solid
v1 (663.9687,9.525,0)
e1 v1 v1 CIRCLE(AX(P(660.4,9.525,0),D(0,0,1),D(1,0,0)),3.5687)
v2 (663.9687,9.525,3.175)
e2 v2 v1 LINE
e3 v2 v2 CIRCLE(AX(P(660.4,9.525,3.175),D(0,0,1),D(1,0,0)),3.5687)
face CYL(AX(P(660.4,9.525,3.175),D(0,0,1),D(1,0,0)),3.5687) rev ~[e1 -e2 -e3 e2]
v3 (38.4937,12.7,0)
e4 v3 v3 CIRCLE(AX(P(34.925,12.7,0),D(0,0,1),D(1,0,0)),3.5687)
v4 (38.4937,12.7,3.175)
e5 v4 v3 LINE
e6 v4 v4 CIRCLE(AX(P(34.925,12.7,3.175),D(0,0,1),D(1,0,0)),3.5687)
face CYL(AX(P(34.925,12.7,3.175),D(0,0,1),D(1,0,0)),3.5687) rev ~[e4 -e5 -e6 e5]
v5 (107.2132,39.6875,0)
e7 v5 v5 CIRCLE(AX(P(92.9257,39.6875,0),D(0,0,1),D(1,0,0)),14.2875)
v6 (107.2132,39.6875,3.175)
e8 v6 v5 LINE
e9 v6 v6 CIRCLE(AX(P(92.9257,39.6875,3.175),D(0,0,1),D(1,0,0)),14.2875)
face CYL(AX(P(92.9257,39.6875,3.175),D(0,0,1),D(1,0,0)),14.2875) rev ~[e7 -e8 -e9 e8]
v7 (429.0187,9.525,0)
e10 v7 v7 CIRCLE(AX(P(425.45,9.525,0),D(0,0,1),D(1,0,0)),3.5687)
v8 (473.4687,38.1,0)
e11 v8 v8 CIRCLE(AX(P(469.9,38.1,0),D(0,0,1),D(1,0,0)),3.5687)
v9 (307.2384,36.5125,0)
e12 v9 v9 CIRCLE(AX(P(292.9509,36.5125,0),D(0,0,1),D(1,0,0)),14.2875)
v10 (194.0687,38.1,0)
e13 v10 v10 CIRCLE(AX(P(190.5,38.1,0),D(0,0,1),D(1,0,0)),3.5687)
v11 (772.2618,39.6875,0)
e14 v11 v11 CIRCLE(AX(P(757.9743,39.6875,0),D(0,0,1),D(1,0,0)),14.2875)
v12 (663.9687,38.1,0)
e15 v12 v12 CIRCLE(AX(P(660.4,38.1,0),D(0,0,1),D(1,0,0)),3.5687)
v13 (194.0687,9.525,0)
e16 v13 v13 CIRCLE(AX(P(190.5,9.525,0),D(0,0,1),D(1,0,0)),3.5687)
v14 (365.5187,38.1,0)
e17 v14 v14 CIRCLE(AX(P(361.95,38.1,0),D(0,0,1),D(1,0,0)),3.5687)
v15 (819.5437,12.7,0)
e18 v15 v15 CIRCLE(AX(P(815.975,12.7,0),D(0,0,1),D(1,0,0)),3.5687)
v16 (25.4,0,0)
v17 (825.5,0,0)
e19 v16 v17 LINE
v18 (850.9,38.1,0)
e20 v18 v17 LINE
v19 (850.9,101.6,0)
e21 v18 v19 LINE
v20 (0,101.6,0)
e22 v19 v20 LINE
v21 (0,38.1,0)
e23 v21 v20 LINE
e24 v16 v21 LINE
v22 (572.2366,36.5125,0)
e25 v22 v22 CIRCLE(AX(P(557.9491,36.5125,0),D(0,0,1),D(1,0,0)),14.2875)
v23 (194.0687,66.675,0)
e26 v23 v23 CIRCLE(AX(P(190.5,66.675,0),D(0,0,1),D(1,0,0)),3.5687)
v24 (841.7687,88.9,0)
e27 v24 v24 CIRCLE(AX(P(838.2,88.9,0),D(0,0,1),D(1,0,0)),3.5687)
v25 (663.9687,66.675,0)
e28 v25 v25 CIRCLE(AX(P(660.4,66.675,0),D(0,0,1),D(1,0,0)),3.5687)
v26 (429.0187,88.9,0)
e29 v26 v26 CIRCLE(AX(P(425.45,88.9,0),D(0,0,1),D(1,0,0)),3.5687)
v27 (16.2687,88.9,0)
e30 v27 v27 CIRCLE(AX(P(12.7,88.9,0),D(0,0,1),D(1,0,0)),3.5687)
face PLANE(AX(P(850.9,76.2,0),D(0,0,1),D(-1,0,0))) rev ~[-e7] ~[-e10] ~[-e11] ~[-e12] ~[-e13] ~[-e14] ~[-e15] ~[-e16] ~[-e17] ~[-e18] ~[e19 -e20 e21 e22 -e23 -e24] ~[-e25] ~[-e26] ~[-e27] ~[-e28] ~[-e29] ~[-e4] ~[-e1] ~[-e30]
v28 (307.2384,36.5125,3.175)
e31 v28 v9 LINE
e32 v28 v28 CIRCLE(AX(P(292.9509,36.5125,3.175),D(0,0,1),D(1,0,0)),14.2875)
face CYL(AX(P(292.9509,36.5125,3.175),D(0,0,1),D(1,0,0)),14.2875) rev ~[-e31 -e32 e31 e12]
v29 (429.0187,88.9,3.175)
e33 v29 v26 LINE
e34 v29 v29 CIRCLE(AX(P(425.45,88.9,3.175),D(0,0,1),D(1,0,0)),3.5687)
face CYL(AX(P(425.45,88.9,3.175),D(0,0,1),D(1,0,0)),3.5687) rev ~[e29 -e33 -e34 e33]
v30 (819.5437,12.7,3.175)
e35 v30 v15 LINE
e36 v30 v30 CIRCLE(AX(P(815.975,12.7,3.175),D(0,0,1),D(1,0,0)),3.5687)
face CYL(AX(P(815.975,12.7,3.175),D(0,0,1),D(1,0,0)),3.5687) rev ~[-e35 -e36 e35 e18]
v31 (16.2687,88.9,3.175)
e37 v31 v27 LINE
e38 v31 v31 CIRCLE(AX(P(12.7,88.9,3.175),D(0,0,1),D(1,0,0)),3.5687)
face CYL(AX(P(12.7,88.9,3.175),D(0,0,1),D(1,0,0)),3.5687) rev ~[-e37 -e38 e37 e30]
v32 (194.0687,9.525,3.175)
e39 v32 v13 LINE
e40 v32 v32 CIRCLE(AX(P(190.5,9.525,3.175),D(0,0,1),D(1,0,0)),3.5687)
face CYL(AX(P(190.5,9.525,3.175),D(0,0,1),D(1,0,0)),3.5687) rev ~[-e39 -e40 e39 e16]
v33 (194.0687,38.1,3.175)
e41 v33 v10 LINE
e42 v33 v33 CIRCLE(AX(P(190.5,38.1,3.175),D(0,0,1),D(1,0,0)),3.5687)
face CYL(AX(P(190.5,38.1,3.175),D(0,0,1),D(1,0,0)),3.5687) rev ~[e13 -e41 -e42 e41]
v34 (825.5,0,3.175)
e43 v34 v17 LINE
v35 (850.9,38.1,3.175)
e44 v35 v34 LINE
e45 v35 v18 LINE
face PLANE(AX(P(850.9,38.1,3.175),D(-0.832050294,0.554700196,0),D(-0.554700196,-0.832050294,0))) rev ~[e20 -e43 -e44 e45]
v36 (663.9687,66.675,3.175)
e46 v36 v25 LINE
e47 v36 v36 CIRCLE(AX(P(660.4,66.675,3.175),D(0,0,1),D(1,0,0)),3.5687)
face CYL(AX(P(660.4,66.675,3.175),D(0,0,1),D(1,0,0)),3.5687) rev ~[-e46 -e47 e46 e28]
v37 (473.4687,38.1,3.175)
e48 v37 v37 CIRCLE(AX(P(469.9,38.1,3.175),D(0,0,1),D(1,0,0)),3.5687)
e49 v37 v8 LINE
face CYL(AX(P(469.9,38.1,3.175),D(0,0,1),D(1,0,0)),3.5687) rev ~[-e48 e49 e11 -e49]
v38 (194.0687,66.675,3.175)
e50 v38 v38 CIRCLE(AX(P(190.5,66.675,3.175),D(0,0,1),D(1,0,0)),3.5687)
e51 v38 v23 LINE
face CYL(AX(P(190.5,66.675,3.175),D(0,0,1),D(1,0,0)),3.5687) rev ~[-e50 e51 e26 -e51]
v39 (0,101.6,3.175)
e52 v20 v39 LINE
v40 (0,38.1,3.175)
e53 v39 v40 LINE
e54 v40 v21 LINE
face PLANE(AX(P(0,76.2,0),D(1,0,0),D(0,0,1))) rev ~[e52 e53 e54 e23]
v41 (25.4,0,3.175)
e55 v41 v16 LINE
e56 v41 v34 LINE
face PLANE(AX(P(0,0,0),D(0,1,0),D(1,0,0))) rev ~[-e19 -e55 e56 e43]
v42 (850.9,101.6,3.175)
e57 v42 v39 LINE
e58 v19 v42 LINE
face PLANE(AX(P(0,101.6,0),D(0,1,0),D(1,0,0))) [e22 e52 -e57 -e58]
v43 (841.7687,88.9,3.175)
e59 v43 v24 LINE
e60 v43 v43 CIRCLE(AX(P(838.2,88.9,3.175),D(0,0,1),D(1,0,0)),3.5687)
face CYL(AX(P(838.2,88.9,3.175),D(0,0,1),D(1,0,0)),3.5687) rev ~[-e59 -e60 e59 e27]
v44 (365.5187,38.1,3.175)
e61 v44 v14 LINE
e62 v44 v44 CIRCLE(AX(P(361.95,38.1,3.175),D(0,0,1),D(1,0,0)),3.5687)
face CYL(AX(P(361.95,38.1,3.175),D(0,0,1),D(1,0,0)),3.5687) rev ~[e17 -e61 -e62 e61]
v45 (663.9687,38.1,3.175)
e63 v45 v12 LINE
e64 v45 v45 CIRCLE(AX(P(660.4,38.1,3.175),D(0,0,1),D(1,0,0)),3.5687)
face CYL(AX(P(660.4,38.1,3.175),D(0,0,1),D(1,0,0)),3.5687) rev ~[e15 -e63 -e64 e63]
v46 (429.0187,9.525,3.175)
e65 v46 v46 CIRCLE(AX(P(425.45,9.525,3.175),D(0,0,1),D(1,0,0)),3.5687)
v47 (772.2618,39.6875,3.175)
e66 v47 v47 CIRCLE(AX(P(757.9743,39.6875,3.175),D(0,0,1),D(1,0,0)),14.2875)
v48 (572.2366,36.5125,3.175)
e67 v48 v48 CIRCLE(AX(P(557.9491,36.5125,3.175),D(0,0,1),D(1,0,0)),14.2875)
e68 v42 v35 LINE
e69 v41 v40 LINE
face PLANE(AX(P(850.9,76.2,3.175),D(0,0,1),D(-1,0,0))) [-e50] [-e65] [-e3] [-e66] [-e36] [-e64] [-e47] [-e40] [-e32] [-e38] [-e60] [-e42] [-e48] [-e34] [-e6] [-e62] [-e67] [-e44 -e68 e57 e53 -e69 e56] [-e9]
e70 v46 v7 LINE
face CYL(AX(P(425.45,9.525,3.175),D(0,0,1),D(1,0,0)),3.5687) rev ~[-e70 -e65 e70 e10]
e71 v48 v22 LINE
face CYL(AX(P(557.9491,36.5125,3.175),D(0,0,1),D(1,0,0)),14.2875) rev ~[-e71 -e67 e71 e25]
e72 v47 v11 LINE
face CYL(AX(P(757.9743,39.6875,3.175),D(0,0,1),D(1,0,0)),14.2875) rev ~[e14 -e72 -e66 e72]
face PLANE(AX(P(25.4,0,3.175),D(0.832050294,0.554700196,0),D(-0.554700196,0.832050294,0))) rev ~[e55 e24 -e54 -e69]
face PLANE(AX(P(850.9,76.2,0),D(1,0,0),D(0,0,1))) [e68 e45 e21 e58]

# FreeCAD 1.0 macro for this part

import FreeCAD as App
import Part
import Sketcher
from FreeCAD import Vector
Q = App.Units.Quantity

doc = App.newDocument("Part")
body = doc.addObject("PartDesign::Body", "Body")

# Sketch on XY plane
sketch1 = body.newObject("Sketcher::SketchObject", "Sketch")
sketch1.AttachmentSupport = (doc.getObject("XY_Plane"), [""])
sketch1.MapMode = "FlatFace"
sketch1.addGeometry([
    Part.LineSegment(Vector(0, 76.2, 0), Vector(0, 0, 0)),
    Part.LineSegment(Vector(0, 0, 0), Vector(850.9, 0, 0)),
    Part.LineSegment(Vector(850.9, 0, 0), Vector(850.9, 76.2, 0)),
    Part.LineSegment(Vector(850.9, 76.2, 0), Vector(0, 76.2, 0)),
], False)
sketch1.addConstraint([
    Sketcher.Constraint("Coincident", 0, 2, 1, 1),
    Sketcher.Constraint("Coincident", 1, 2, 2, 1),
    Sketcher.Constraint("Coincident", 2, 2, 3, 1),
    Sketcher.Constraint("Coincident", 3, 2, 0, 1),
    Sketcher.Constraint("Vertical", 0),
    Sketcher.Constraint("Horizontal", 1),
    Sketcher.Constraint("Vertical", 2),
    Sketcher.Constraint("Horizontal", 3),
    Sketcher.Constraint("Coincident", 0, 2, -1, 1),
    Sketcher.Constraint("DistanceY", 0, 2, 0, 1, Q("3 in")),
    Sketcher.Constraint("DistanceX", 1, 1, 1, 2, Q("33.5 in")),
])
pad1 = body.newObject("PartDesign::Pad", "Pad")
pad1.Profile = sketch1
pad1.Length = Q("0.125 in")

# Sketch on XY plane
sketch2 = body.newObject("Sketcher::SketchObject", "Sketch001")
sketch2.AttachmentSupport = (doc.getObject("XY_Plane"), [""])
sketch2.MapMode = "FlatFace"
sketch2.AttachmentOffset = App.Placement(Vector(0, 0, 0.125 * 25.4), App.Rotation())
sketch2.addGeometry([
    Part.LineSegment(Vector(850.9, 38.1, 0), Vector(825.5, 0, 0)),  # 0
    Part.LineSegment(Vector(825.5, 0, 0), Vector(850.9, 0, 0)),  # 1
    Part.LineSegment(Vector(850.9, 0, 0), Vector(850.9, 38.1, 0)),  # 2
    Part.LineSegment(Vector(0, 38.1, 0), Vector(0, 0, 0)),  # 3
    Part.LineSegment(Vector(0, 0, 0), Vector(25.4, 0, 0)),  # 4
    Part.LineSegment(Vector(25.4, 0, 0), Vector(0, 38.1, 0)),  # 5
    Part.Circle(Vector(292.9509, 36.5125, 0), Vector(0, 0, 1), 14.2875),  # 6
    Part.Circle(Vector(557.9491, 36.5125, 0), Vector(0, 0, 1), 14.2875),  # 7
    Part.Circle(Vector(757.9743, 39.6875, 0), Vector(0, 0, 1), 14.2875),  # 8
    Part.Circle(Vector(92.9257, 39.6875, 0), Vector(0, 0, 1), 14.2875),  # 9
], False)
sketch2.addConstraint([
    Sketcher.Constraint("Coincident", 0, 2, 1, 1),
    Sketcher.Constraint("Coincident", 1, 2, 2, 1),
    Sketcher.Constraint("Coincident", 2, 2, 0, 1),
    Sketcher.Constraint("Coincident", 3, 2, 4, 1),
    Sketcher.Constraint("Coincident", 4, 2, 5, 1),
    Sketcher.Constraint("Coincident", 5, 2, 3, 1),
    Sketcher.Constraint("Horizontal", 1),
    Sketcher.Constraint("Vertical", 2),
    Sketcher.Constraint("Vertical", 3),
    Sketcher.Constraint("Horizontal", 4),
    Sketcher.Constraint("Coincident", 3, 2, -1, 1),
    Sketcher.Constraint("Equal", 6, 7),
    Sketcher.Constraint("Equal", 7, 8),
    Sketcher.Constraint("Equal", 8, 9),
    Sketcher.Constraint("PointOnObject", 0, 2, -1),
    Sketcher.Constraint("Horizontal", 6, 3, 7, 3),
    Sketcher.Constraint("Horizontal", 8, 3, 9, 3),
    Sketcher.Constraint("Horizontal", 2, 2, 5, 2),
    Sketcher.Constraint("Equal", 1, 4),
    Sketcher.Constraint("DistanceX", 1, 1, 1, 2, Q("1 in")),
    Sketcher.Constraint("Diameter", 6, Q("1.125 in")),
    Sketcher.Constraint("DistanceY", 2, 1, 2, 2, Q("1.5 in")),
    Sketcher.Constraint("DistanceX", -1, 1, 0, 2, Q("32.5 in")),
    Sketcher.Constraint("DistanceY", -1, 1, 6, 3, Q("1.4375 in")),
    Sketcher.Constraint("DistanceY", -1, 1, 8, 3, Q("1.5625 in")),
    Sketcher.Constraint("DistanceX", 6, 3, 7, 3, Q("10.433 in")),
    Sketcher.Constraint("DistanceX", 7, 3, 8, 3, Q("7.875 in")),
    Sketcher.Constraint("DistanceX", 9, 3, 6, 3, Q("7.875 in")),
    Sketcher.Constraint("DistanceX", -1, 1, 6, 3, Q("11.5335 in")),
])
pocket1 = body.newObject("PartDesign::Pocket", "Pocket")
pocket1.Profile = sketch2
pocket1.Length = Q("0.125 in")

# Sketch on XY plane
sketch3 = body.newObject("Sketcher::SketchObject", "Sketch002")
sketch3.AttachmentSupport = (doc.getObject("XY_Plane"), [""])
sketch3.MapMode = "FlatFace"
sketch3.AttachmentOffset = App.Placement(Vector(0, 0, 0.125 * 25.4), App.Rotation())
sketch3.addGeometry([
    Part.Circle(Vector(425.45, 66.675, 0), Vector(0, 0, 1), 3.5687),  # 0
    Part.Circle(Vector(425.45, 9.525, 0), Vector(0, 0, 1), 3.5687),  # 1
    Part.Circle(Vector(190.5, 66.675, 0), Vector(0, 0, 1), 3.5687),  # 2
    Part.Circle(Vector(190.5, 9.525, 0), Vector(0, 0, 1), 3.5687),  # 3
    Part.Circle(Vector(190.5, 38.1, 0), Vector(0, 0, 1), 3.5687),  # 4
    Part.Circle(Vector(660.4, 66.675, 0), Vector(0, 0, 1), 3.5687),  # 5
    Part.Circle(Vector(660.4, 9.525, 0), Vector(0, 0, 1), 3.5687),  # 6
    Part.Circle(Vector(660.4, 38.1, 0), Vector(0, 0, 1), 3.5687),  # 7
    Part.Circle(Vector(838.2, 63.5, 0), Vector(0, 0, 1), 3.5687),  # 8
    Part.Circle(Vector(12.7, 63.5, 0), Vector(0, 0, 1), 3.5687),  # 9
    Part.Circle(Vector(34.925, 12.7, 0), Vector(0, 0, 1), 3.5687),  # 10
    Part.Circle(Vector(815.975, 12.7, 0), Vector(0, 0, 1), 3.5687),  # 11
], False)
sketch3.addConstraint([
    Sketcher.Constraint("Equal", 0, 1),
    Sketcher.Constraint("Equal", 1, 2),
    Sketcher.Constraint("Equal", 2, 3),
    Sketcher.Constraint("Equal", 3, 4),
    Sketcher.Constraint("Equal", 4, 5),
    Sketcher.Constraint("Equal", 5, 6),
    Sketcher.Constraint("Equal", 6, 7),
    Sketcher.Constraint("Equal", 7, 8),
    Sketcher.Constraint("Equal", 8, 9),
    Sketcher.Constraint("Equal", 9, 10),
    Sketcher.Constraint("Equal", 10, 11),
    Sketcher.Constraint("Horizontal", 0, 3, 2, 3),
    Sketcher.Constraint("Horizontal", 1, 3, 3, 3),
    Sketcher.Constraint("Horizontal", 2, 3, 5, 3),
    Sketcher.Constraint("Horizontal", 3, 3, 6, 3),
    Sketcher.Constraint("Horizontal", 4, 3, 7, 3),
    Sketcher.Constraint("Horizontal", 8, 3, 9, 3),
    Sketcher.Constraint("Horizontal", 10, 3, 11, 3),
    Sketcher.Constraint("Vertical", 0, 3, 1, 3),
    Sketcher.Constraint("Vertical", 2, 3, 3, 3),
    Sketcher.Constraint("Vertical", 3, 3, 4, 3),
    Sketcher.Constraint("Vertical", 5, 3, 6, 3),
    Sketcher.Constraint("Vertical", 6, 3, 7, 3),
    Sketcher.Constraint("Diameter", 0, Q("0.281 in")),
    Sketcher.Constraint("DistanceX", -1, 1, 2, 3, Q("7.5 in")),
    Sketcher.Constraint("DistanceY", -1, 1, 4, 3, Q("1.5 in")),
    Sketcher.Constraint("DistanceX", -1, 1, 9, 3, Q("0.5 in")),
    Sketcher.Constraint("DistanceY", -1, 1, 10, 3, Q("0.5 in")),
    Sketcher.Constraint("DistanceX", -1, 1, 0, 3, Q("16.75 in")),
    Sketcher.Constraint("DistanceY", -1, 1, 1, 3, Q("0.375 in")),
    Sketcher.Constraint("DistanceX", -1, 1, 5, 3, Q("26 in")),
    Sketcher.Constraint("DistanceX", -1, 1, 8, 3, Q("33 in")),
    Sketcher.Constraint("DistanceY", 7, 3, 8, 3, Q("1 in")),
    Sketcher.Constraint("DistanceY", 1, 3, 0, 3, Q("2.25 in")),
    Sketcher.Constraint("DistanceX", -1, 1, 10, 3, Q("1.375 in")),
    Sketcher.Constraint("DistanceX", -1, 1, 11, 3, Q("32.125 in")),
])
pocket2 = body.newObject("PartDesign::Pocket", "Pocket001")
pocket2.Profile = sketch3
pocket2.Length = Q("0.125 in")

# Sketch on XY plane
sketch4 = body.newObject("Sketcher::SketchObject", "Sketch003")
sketch4.AttachmentSupport = (doc.getObject("XY_Plane"), [""])
sketch4.MapMode = "FlatFace"
sketch4.AttachmentOffset = App.Placement(Vector(0, 0, 0.125 * 25.4), App.Rotation())
sketch4.addGeometry([
    Part.Circle(Vector(361.95, 38.1, 0), Vector(0, 0, 1), 3.5687),
    Part.Circle(Vector(469.9, 38.1, 0), Vector(0, 0, 1), 3.5687),
], False)
sketch4.addConstraint([
    Sketcher.Constraint("Equal", 0, 1),
    Sketcher.Constraint("Horizontal", 0, 3, 1, 3),
    Sketcher.Constraint("Diameter", 0, Q("0.281 in")),
    Sketcher.Constraint("DistanceY", -1, 1, 0, 3, Q("1.5 in")),
    Sketcher.Constraint("DistanceX", -1, 1, 0, 3, Q("14.25 in")),
    Sketcher.Constraint("DistanceX", -1, 1, 1, 3, Q("18.5 in")),
])
pocket3 = body.newObject("PartDesign::Pocket", "Pocket002")
pocket3.Profile = sketch4
pocket3.Length = Q("1 in")

# Sketch on XZ plane
sketch5 = body.newObject("Sketcher::SketchObject", "Sketch004")
sketch5.AttachmentSupport = (doc.getObject("XZ_Plane"), [""])
sketch5.MapMode = "FlatFace"
sketch5.AttachmentOffset = App.Placement(Vector(0, 0, -3 * 25.4), App.Rotation())
sketch5.addGeometry([
    Part.LineSegment(Vector(850.9, 3.175, 0), Vector(850.9, 0, 0)),
    Part.LineSegment(Vector(850.9, 0, 0), Vector(0, 0, 0)),
    Part.LineSegment(Vector(0, 0, 0), Vector(0, 3.175, 0)),
    Part.LineSegment(Vector(0, 3.175, 0), Vector(850.9, 3.175, 0)),
], False)
sketch5.addConstraint([
    Sketcher.Constraint("Coincident", 0, 2, 1, 1),
    Sketcher.Constraint("Coincident", 1, 2, 2, 1),
    Sketcher.Constraint("Coincident", 2, 2, 3, 1),
    Sketcher.Constraint("Coincident", 3, 2, 0, 1),
    Sketcher.Constraint("Vertical", 0),
    Sketcher.Constraint("Horizontal", 1),
    Sketcher.Constraint("Vertical", 2),
    Sketcher.Constraint("Horizontal", 3),
    Sketcher.Constraint("Coincident", 1, 2, -1, 1),
    Sketcher.Constraint("DistanceX", 1, 2, 1, 1, Q("33.5 in")),
    Sketcher.Constraint("DistanceY", 0, 2, 0, 1, Q("0.125 in")),
])
pad2 = body.newObject("PartDesign::Pad", "Pad001")
pad2.Profile = sketch5
pad2.Length = Q("1 in")
pad2.Reversed = True

# Sketch on XY plane
sketch6 = body.newObject("Sketcher::SketchObject", "Sketch005")
sketch6.AttachmentSupport = (doc.getObject("XY_Plane"), [""])
sketch6.MapMode = "FlatFace"
sketch6.AttachmentOffset = App.Placement(Vector(0, 0, 0.125 * 25.4), App.Rotation())
sketch6.addGeometry([
    Part.Circle(Vector(12.7, 63.5, 0), Vector(0, 0, 1), 3.5687),
    Part.Circle(Vector(838.2, 63.5, 0), Vector(0, 0, 1), 3.5687),
    Part.Circle(Vector(425.45, 66.675, 0), Vector(0, 0, 1), 3.5687),
], False)
sketch6.addConstraint([
    Sketcher.Constraint("Equal", 0, 1),
    Sketcher.Constraint("Equal", 1, 2),
    Sketcher.Constraint("Horizontal", 0, 3, 1, 3),
    Sketcher.Constraint("Diameter", 0, Q("0.281 in")),
    Sketcher.Constraint("DistanceX", -1, 1, 1, 3, Q("33 in")),
    Sketcher.Constraint("DistanceX", -1, 1, 0, 3, Q("0.5 in")),
    Sketcher.Constraint("DistanceY", -1, 1, 0, 3, Q("2.5 in")),
    Sketcher.Constraint("DistanceX", -1, 1, 2, 3, Q("16.75 in")),
    Sketcher.Constraint("DistanceY", -1, 1, 2, 3, Q("2.625 in")),
])
pad3 = body.newObject("PartDesign::Pad", "Pad002")
pad3.Profile = sketch6
pad3.Length = Q("0.125 in")
pad3.Reversed = True

# Sketch on XY plane
sketch7 = body.newObject("Sketcher::SketchObject", "Sketch006")
sketch7.AttachmentSupport = (doc.getObject("XY_Plane"), [""])
sketch7.MapMode = "FlatFace"
sketch7.AttachmentOffset = App.Placement(Vector(0, 0, 0.125 * 25.4), App.Rotation())
sketch7.addGeometry([
    Part.Circle(Vector(12.7, 88.9, 0), Vector(0, 0, 1), 3.5687),
    Part.Circle(Vector(838.2, 88.9, 0), Vector(0, 0, 1), 3.5687),
    Part.Circle(Vector(425.45, 88.9, 0), Vector(0, 0, 1), 3.5687),
], False)
sketch7.addConstraint([
    Sketcher.Constraint("Equal", 0, 1),
    Sketcher.Constraint("Equal", 1, 2),
    Sketcher.Constraint("Horizontal", 0, 3, 1, 3),
    Sketcher.Constraint("Horizontal", 1, 3, 2, 3),
    Sketcher.Constraint("Diameter", 0, Q("0.281 in")),
    Sketcher.Constraint("DistanceX", -1, 1, 0, 3, Q("0.5 in")),
    Sketcher.Constraint("DistanceX", -1, 1, 1, 3, Q("33 in")),
    Sketcher.Constraint("DistanceY", -1, 1, 0, 3, Q("3.5 in")),
    Sketcher.Constraint("DistanceX", -1, 1, 2, 3, Q("16.75 in")),
])
pocket4 = body.newObject("PartDesign::Pocket", "Pocket003")
pocket4.Profile = sketch7
pocket4.Length = Q("0.125 in")

doc.recompute()
